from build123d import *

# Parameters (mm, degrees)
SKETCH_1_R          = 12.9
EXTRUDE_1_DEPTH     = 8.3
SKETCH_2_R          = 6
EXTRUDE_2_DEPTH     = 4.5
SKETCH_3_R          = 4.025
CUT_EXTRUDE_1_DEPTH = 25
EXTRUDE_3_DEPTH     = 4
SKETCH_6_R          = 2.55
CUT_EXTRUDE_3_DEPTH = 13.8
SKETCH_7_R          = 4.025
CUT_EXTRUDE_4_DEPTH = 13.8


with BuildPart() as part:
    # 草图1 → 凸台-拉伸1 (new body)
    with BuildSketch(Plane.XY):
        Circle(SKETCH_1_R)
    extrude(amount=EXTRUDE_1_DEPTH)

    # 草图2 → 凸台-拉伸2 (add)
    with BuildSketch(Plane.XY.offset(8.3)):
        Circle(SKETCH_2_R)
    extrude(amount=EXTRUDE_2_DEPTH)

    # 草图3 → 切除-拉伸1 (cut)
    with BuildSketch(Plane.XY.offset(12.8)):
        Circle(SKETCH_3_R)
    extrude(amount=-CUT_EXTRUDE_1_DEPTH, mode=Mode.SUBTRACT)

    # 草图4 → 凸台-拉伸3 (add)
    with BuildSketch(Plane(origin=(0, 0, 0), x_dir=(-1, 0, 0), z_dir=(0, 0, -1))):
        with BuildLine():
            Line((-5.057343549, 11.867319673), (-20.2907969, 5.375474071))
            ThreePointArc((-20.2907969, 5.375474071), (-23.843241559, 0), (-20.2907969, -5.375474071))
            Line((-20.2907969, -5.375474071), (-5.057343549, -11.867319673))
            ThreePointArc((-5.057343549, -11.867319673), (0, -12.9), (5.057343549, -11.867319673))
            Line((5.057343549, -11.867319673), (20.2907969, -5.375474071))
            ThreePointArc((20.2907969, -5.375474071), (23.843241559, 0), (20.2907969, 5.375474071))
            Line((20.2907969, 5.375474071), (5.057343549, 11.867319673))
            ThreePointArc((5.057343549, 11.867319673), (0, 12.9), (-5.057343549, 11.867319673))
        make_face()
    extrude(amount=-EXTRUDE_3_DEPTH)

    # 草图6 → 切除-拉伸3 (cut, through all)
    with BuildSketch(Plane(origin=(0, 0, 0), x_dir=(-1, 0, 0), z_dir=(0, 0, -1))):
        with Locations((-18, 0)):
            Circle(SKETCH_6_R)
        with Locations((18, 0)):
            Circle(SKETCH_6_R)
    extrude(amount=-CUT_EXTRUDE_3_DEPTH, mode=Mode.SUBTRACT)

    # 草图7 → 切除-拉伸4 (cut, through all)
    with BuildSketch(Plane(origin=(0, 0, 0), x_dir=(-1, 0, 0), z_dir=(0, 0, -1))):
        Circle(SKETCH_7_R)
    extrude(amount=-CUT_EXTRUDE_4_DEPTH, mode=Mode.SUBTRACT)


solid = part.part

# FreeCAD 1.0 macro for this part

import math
import FreeCAD as App
import Part
import Sketcher
Q = App.Units.Quantity

doc = App.newDocument("Part")
body = doc.addObject("PartDesign::Body", "Body")

sketch1 = doc.addObject("Sketcher::SketchObject", "Sketch")
body.addObject(sketch1)
sketch1.AttachmentSupport = (doc.XY_Plane, [""])
sketch1.MapMode = "FlatFace"
sketch1.addGeometry(Part.Circle(App.Vector(0, 0, 0), App.Vector(0, 0, 1), 13), False)
sketch1.addConstraint([
    Sketcher.Constraint("Coincident", 0, 3, -1, 1),
    Sketcher.Constraint("Diameter", 0, Q("25.8 mm")),
])
pad1 = doc.addObject("PartDesign::Pad", "Pad")
body.addObject(pad1)
pad1.Profile = sketch1
pad1.Length = 8.3

sketch2 = doc.addObject("Sketcher::SketchObject", "Sketch001")
body.addObject(sketch2)
sketch2.AttachmentSupport = (doc.XY_Plane, [""])
sketch2.MapMode = "FlatFace"
sketch2.AttachmentOffset = App.Placement(App.Vector(0, 0, 8.3), App.Rotation())
sketch2.addGeometry(Part.Circle(App.Vector(0, 0, 0), App.Vector(0, 0, 1), 6), False)
sketch2.addConstraint([
    Sketcher.Constraint("Coincident", 0, 3, -1, 1),
    Sketcher.Constraint("Diameter", 0, Q("12 mm")),
])
pad2 = doc.addObject("PartDesign::Pad", "Pad001")
body.addObject(pad2)
pad2.Profile = sketch2
pad2.Length = 4.5

sketch3 = doc.addObject("Sketcher::SketchObject", "Sketch002")
body.addObject(sketch3)
sketch3.AttachmentSupport = (doc.XY_Plane, [""])
sketch3.MapMode = "FlatFace"
sketch3.AttachmentOffset = App.Placement(App.Vector(0, 0, 12.8), App.Rotation())
sketch3.addGeometry(Part.Circle(App.Vector(0, 0, 0), App.Vector(0, 0, 1), 4), False)
sketch3.addConstraint([
    Sketcher.Constraint("Coincident", 0, 3, -1, 1),
    Sketcher.Constraint("Diameter", 0, Q("8.05 mm")),
])
pocket1 = doc.addObject("PartDesign::Pocket", "Pocket")
body.addObject(pocket1)
pocket1.Profile = sketch3
pocket1.Length = 25

sketch4 = doc.addObject("Sketcher::SketchObject", "Sketch003")
body.addObject(sketch4)
sketch4.AttachmentSupport = (doc.XY_Plane, [""])
sketch4.MapMode = "FlatFace"
sketch4.addGeometry([
    Part.LineSegment(App.Vector(5, 12, 0), App.Vector(20, 5, 0)),
    Part.ArcOfCircle(Part.Circle(App.Vector(18, 0, 0), App.Vector(0, 0, 1), 6), math.radians(-67), math.radians(67)),
    Part.LineSegment(App.Vector(20, -5, 0), App.Vector(5, -12, 0)),
    Part.ArcOfCircle(Part.Circle(App.Vector(0, 0, 0), App.Vector(0, 0, 1), 13), math.radians(-113), math.radians(-67)),
    Part.LineSegment(App.Vector(-5, -12, 0), App.Vector(-20, -5, 0)),
    Part.ArcOfCircle(Part.Circle(App.Vector(-18, 0, 0), App.Vector(0, 0, 1), 6), math.radians(113), math.radians(247)),
    Part.LineSegment(App.Vector(-20, 5, 0), App.Vector(-5, 12, 0)),
    Part.ArcOfCircle(Part.Circle(App.Vector(0, 0, 0), App.Vector(0, 0, 1), 13), math.radians(67), math.radians(113)),
], False)
sketch4.addConstraint([
    Sketcher.Constraint("Tangent", 0, 2, 1, 2),
    Sketcher.Constraint("Tangent", 1, 1, 2, 1),
    Sketcher.Constraint("Tangent", 2, 2, 3, 2),
    Sketcher.Constraint("Tangent", 3, 1, 4, 1),
    Sketcher.Constraint("Tangent", 4, 2, 5, 2),
    Sketcher.Constraint("Tangent", 5, 1, 6, 1),
    Sketcher.Constraint("Tangent", 6, 2, 7, 2),
    Sketcher.Constraint("Tangent", 7, 1, 0, 1),
    Sketcher.Constraint("Coincident", 3, 3, -1, 1),
    Sketcher.Constraint("Coincident", 7, 3, -1, 1),
    Sketcher.Constraint("Equal", 1, 5),
    Sketcher.Constraint("Equal", 3, 7),
    Sketcher.Constraint("Symmetric", 1, 3, 5, 3, -1, 1),
    Sketcher.Constraint("PointOnObject", 1, 3, -1),
    Sketcher.Constraint("Radius", 3, Q("12.9 mm")),
    Sketcher.Constraint("DistanceX", -1, 1, 1, 3, Q("18 mm")),
    Sketcher.Constraint("Radius", 1, Q("5.843242 mm")),
])
pad3 = doc.addObject("PartDesign::Pad", "Pad002")
body.addObject(pad3)
pad3.Profile = sketch4
pad3.Length = 4

sketch5 = doc.addObject("Sketcher::SketchObject", "Sketch004")
body.addObject(sketch5)
sketch5.AttachmentSupport = (doc.XY_Plane, [""])
sketch5.MapMode = "FlatFace"
sketch5.addGeometry([
    Part.Circle(App.Vector(18, 0, 0), App.Vector(0, 0, 1), 2.5),
    Part.Circle(App.Vector(-18, 0, 0), App.Vector(0, 0, 1), 2.5),
], False)
sketch5.addConstraint([
    Sketcher.Constraint("Equal", 0, 1),
    Sketcher.Constraint("Symmetric", 0, 3, 1, 3, -1, 1),
    Sketcher.Constraint("PointOnObject", 0, 3, -1),
    Sketcher.Constraint("Diameter", 0, Q("5.1 mm")),
    Sketcher.Constraint("DistanceX", -1, 1, 0, 3, Q("18 mm")),
])
pocket2 = doc.addObject("PartDesign::Pocket", "Pocket001")
body.addObject(pocket2)
pocket2.Profile = sketch5
pocket2.Type = "ThroughAll"
pocket2.Reversed = True

sketch6 = doc.addObject("Sketcher::SketchObject", "Sketch005")
body.addObject(sketch6)
sketch6.AttachmentSupport = (doc.XY_Plane, [""])
sketch6.MapMode = "FlatFace"
sketch6.addGeometry(Part.Circle(App.Vector(0, 0, 0), App.Vector(0, 0, 1), 4), False)
sketch6.addConstraint([
    Sketcher.Constraint("Coincident", 0, 3, -1, 1),
    Sketcher.Constraint("Diameter", 0, Q("8.05 mm")),
])
pocket3 = doc.addObject("PartDesign::Pocket", "Pocket002")
body.addObject(pocket3)
pocket3.Profile = sketch6
pocket3.Type = "ThroughAll"
pocket3.Reversed = True

doc.recompute()
